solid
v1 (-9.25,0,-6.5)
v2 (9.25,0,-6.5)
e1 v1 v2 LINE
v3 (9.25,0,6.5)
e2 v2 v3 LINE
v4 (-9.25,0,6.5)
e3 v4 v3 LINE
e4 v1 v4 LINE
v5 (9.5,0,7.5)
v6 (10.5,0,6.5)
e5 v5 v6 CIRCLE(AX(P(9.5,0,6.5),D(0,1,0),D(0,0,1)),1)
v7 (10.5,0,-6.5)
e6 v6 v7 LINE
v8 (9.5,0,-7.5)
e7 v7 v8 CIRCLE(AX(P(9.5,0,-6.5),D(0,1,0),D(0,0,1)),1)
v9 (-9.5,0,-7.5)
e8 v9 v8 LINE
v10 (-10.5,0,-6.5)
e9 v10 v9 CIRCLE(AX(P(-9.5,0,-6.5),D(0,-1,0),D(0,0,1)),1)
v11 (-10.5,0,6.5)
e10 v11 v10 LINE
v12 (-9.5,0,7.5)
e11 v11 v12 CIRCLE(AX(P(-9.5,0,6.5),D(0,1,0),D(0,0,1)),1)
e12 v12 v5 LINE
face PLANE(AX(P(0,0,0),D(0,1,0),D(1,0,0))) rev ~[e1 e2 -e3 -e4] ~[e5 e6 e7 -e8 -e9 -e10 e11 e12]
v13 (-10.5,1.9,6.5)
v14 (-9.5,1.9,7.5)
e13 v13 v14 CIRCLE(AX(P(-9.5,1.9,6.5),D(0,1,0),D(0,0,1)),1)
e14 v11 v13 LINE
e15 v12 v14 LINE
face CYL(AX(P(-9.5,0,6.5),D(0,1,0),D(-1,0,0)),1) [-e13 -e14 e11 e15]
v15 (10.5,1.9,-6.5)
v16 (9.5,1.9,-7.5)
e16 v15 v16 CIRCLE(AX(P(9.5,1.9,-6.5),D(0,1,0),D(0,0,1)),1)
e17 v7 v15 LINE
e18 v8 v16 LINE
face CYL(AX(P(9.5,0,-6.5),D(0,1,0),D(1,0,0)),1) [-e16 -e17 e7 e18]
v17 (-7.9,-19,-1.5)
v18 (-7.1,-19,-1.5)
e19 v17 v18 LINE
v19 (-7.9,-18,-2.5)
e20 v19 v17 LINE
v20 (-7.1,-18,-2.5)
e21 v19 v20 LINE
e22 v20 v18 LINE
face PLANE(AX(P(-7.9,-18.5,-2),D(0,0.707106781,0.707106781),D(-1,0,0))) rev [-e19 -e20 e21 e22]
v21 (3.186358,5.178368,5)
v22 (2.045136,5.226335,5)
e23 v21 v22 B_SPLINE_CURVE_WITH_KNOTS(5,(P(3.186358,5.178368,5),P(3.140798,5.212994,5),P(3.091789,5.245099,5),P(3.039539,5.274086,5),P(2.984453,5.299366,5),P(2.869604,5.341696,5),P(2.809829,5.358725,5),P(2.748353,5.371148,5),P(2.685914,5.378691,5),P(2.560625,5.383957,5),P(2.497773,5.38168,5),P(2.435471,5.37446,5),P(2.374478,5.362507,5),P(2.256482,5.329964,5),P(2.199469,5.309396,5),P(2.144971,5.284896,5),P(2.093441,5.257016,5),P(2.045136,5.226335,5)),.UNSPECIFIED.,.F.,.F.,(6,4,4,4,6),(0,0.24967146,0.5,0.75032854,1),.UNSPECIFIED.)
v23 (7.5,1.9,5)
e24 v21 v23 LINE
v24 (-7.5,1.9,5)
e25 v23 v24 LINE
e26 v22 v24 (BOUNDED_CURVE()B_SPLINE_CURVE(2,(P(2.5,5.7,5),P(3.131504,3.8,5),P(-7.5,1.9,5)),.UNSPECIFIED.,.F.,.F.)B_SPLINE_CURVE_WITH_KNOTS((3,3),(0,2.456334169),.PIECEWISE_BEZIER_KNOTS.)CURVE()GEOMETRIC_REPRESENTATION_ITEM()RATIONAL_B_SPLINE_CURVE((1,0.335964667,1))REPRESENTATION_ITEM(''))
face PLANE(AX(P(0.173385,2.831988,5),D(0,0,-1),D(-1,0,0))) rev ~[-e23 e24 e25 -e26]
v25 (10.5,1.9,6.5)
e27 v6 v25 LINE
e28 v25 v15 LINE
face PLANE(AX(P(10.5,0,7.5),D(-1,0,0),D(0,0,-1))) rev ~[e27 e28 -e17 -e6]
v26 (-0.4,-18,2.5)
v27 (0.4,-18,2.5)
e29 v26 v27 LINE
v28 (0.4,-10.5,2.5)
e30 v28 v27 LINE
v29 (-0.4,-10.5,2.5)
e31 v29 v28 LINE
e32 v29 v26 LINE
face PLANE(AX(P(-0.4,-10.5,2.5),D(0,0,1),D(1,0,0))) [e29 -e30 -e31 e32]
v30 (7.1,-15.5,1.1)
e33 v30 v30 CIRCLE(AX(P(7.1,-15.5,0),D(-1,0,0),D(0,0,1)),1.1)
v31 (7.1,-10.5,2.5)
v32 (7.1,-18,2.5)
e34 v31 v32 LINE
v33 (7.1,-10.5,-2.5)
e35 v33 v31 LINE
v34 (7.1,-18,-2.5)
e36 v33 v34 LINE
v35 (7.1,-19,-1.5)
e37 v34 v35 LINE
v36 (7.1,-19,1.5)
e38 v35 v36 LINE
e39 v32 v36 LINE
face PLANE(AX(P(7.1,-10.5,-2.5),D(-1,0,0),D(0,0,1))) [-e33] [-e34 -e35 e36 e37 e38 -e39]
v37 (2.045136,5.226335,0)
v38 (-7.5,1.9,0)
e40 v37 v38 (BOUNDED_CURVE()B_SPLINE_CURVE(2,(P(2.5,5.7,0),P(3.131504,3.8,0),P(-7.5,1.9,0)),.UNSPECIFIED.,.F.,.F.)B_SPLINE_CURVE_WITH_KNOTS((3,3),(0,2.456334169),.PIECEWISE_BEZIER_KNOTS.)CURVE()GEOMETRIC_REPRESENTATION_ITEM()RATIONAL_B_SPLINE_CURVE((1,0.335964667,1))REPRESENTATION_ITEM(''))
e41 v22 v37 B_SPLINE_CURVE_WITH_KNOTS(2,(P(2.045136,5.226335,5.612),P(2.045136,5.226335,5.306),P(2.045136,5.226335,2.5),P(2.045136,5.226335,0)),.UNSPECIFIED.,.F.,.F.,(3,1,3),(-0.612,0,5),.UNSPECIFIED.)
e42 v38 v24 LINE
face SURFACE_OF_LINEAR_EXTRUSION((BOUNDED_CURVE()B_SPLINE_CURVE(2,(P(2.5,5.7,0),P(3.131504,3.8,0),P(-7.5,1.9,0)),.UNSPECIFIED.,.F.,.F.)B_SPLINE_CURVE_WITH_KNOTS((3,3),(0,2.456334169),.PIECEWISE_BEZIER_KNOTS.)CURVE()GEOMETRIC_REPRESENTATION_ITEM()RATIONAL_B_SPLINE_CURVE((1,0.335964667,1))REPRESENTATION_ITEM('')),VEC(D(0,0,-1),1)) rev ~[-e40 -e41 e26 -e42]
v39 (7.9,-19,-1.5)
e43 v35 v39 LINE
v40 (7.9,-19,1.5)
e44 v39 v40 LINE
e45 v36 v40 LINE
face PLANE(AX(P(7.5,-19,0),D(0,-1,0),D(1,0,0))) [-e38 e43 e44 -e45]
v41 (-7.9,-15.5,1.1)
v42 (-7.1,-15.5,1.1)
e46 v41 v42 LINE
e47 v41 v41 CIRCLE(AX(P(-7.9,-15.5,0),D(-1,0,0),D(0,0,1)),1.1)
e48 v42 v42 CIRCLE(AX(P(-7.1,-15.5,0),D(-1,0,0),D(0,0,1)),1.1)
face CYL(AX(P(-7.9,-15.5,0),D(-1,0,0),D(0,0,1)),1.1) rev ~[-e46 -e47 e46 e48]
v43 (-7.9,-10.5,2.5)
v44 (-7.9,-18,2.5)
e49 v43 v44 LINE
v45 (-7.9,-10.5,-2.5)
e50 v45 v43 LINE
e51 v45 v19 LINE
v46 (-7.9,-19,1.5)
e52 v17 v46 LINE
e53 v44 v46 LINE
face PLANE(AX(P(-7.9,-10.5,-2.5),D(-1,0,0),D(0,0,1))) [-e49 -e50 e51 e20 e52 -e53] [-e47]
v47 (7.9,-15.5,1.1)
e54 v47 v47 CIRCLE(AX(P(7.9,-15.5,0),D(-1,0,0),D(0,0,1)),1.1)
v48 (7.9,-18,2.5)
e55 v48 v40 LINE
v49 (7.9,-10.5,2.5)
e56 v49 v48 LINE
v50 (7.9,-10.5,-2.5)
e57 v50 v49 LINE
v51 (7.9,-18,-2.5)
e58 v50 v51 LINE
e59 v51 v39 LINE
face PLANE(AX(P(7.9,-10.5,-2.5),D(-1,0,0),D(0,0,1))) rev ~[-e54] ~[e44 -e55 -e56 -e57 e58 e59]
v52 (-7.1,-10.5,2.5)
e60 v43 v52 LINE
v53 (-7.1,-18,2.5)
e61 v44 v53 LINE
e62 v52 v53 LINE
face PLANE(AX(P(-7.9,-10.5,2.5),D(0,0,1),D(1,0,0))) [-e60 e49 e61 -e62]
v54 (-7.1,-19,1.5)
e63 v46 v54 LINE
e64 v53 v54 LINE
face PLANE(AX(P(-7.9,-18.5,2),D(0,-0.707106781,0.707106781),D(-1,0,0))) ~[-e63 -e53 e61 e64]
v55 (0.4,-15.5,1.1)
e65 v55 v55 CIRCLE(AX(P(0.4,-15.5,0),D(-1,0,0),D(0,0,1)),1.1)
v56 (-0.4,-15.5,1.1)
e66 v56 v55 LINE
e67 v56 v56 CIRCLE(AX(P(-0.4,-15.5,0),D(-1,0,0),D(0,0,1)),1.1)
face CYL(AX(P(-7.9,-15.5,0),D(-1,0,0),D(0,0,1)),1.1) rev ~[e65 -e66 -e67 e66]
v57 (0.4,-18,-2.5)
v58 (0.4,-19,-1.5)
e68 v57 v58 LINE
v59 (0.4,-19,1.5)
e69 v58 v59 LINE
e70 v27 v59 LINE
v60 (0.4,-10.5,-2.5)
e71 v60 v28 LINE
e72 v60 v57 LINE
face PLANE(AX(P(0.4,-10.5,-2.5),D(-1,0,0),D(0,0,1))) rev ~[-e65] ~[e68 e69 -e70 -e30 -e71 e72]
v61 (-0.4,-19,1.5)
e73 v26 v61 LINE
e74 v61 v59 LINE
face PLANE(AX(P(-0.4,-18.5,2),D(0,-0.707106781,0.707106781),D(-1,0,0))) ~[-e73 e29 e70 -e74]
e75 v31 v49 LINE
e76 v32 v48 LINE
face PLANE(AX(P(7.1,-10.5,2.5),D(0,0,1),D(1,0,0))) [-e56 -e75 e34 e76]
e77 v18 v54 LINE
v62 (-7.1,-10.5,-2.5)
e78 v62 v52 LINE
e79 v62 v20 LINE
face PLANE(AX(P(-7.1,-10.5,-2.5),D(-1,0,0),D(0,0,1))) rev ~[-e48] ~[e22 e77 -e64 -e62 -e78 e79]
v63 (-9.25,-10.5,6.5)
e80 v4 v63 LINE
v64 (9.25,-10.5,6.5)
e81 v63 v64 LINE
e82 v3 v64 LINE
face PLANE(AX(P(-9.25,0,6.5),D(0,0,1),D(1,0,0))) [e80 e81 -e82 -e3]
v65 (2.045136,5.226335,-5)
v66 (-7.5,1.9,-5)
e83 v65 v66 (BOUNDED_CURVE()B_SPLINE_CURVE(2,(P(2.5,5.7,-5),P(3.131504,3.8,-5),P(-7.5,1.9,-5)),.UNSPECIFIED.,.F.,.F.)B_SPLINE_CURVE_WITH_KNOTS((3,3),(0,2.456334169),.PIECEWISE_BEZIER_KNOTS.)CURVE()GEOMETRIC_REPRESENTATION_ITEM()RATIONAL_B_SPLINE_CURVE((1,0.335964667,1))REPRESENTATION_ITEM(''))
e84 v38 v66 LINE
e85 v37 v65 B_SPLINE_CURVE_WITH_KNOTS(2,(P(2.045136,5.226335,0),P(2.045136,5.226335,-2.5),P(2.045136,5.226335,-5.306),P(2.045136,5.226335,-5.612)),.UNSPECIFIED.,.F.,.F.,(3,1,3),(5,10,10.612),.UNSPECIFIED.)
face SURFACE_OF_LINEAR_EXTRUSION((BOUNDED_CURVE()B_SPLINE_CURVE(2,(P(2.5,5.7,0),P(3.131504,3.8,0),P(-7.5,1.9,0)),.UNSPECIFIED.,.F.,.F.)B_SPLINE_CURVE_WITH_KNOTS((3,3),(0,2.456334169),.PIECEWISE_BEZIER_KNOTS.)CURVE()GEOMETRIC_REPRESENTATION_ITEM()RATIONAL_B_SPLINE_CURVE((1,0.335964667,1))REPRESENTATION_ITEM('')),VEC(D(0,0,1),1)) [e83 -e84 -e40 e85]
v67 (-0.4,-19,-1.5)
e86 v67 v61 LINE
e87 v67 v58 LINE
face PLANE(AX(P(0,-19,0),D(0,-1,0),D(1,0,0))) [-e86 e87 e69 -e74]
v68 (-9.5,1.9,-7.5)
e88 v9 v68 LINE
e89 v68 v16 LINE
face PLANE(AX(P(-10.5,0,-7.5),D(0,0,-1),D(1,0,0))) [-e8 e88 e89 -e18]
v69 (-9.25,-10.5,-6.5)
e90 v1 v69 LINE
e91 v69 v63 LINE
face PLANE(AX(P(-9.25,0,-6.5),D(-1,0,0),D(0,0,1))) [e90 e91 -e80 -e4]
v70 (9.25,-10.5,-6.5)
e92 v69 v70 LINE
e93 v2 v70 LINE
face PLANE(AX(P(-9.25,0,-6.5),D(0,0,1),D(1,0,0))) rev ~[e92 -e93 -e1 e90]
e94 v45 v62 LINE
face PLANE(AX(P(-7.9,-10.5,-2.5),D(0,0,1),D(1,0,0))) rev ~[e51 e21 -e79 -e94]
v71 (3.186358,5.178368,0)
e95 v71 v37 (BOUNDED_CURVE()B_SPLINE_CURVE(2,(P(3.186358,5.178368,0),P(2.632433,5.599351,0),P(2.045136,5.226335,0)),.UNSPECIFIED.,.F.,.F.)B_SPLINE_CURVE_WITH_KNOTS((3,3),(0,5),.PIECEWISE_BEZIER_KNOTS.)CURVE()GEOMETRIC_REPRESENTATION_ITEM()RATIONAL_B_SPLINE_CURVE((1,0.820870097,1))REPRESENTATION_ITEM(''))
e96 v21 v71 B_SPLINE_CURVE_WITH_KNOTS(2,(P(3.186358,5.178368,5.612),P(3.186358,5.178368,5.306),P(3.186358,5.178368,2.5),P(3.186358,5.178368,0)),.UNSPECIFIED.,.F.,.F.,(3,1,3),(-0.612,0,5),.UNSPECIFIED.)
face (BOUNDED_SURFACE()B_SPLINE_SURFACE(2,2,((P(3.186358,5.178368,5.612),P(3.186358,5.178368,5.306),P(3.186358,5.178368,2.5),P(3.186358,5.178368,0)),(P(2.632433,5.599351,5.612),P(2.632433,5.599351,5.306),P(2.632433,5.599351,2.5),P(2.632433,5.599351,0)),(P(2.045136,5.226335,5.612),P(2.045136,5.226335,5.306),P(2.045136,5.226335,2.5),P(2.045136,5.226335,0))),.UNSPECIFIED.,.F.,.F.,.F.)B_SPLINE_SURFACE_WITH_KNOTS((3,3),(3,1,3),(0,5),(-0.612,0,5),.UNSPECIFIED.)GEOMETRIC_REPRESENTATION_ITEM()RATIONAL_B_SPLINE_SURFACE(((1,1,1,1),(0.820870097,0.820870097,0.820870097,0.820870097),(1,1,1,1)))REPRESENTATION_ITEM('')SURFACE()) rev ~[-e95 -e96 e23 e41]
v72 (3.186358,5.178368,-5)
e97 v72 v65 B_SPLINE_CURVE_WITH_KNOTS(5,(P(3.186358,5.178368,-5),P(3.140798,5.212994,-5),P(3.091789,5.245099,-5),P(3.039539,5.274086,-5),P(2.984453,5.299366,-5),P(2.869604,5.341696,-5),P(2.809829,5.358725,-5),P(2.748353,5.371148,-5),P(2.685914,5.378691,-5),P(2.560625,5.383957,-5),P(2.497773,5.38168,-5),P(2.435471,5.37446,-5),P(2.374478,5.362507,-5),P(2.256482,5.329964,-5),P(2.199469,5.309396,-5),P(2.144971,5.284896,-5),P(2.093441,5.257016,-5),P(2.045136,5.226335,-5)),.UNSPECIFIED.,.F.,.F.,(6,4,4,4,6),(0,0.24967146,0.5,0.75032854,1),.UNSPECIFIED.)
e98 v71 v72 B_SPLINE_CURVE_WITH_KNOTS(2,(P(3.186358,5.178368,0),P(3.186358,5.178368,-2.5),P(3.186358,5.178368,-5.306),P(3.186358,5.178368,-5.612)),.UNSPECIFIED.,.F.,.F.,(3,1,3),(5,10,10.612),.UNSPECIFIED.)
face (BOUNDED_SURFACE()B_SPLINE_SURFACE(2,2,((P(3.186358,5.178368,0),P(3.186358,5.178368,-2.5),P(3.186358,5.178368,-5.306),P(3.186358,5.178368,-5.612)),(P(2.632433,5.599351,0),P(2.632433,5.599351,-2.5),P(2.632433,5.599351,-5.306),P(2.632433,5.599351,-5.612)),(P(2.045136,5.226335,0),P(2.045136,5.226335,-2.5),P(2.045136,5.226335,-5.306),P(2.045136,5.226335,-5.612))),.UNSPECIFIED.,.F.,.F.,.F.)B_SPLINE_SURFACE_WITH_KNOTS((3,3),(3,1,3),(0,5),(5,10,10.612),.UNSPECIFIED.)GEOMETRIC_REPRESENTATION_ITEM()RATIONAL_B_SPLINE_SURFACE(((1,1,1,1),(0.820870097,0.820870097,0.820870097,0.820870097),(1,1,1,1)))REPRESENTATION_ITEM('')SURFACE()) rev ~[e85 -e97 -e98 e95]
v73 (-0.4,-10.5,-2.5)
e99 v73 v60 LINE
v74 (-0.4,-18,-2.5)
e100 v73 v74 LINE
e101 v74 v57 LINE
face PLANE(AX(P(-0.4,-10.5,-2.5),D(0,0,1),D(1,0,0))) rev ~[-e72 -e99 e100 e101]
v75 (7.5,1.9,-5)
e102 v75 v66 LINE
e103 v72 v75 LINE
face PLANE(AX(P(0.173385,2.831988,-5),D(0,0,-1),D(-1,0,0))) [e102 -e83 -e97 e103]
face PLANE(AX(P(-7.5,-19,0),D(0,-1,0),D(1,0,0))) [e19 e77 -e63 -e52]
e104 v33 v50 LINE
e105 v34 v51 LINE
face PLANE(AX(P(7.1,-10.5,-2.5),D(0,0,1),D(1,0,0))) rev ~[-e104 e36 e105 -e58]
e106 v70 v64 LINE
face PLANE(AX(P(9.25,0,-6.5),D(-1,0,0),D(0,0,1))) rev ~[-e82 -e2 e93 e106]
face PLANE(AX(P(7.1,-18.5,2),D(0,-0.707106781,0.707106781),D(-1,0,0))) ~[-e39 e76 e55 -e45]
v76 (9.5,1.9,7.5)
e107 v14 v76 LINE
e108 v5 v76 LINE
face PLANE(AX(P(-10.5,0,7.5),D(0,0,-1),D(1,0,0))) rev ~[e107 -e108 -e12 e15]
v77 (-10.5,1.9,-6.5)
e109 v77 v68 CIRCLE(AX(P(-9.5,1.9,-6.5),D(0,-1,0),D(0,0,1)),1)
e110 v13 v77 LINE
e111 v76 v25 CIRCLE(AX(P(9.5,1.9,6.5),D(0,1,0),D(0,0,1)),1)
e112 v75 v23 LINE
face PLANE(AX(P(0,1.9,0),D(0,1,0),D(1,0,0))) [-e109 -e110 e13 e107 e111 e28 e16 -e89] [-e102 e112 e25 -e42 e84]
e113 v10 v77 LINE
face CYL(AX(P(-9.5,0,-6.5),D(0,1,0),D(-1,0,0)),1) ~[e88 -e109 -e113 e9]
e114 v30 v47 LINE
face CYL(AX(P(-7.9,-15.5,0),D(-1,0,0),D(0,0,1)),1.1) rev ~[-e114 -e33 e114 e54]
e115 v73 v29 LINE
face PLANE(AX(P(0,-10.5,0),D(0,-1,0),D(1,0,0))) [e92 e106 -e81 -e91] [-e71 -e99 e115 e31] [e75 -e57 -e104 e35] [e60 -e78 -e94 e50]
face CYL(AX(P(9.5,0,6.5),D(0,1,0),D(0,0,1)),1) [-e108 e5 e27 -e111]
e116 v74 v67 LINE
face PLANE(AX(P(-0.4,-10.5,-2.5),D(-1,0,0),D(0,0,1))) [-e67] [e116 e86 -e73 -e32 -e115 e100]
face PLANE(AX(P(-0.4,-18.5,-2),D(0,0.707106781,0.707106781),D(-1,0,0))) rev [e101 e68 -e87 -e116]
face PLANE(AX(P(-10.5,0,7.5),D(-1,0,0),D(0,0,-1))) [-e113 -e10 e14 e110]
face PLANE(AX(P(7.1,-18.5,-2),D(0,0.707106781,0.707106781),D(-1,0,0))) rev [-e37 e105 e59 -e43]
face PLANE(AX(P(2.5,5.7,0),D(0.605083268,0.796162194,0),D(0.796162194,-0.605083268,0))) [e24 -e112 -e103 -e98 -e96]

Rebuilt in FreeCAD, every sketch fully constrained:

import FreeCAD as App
import Part
import Sketcher

V = App.Vector
Q = App.Units.Quantity


def edges_at(feature, points):
    """Names of the edges that pass closest to the given points."""
    edges = feature.Shape.Edges
    near = lambda p: min(range(len(edges)), key=lambda i: edges[i].distToShape(Part.Vertex(*p))[0])
    return sorted({f"Edge{near(p) + 1}" for p in points})


def add_polygon(sketch, points):
    """Adds a closed chain of lines whose ends are joined by coincident constraints."""
    first, n = sketch.GeometryCount, len(points)
    for a, b in zip(points, points[1:] + points[:1]):
        sketch.addGeometry(Part.LineSegment(App.Vector(*a, 0), App.Vector(*b, 0)), False)
    for i in range(n):
        sketch.addConstraint(Sketcher.Constraint("Coincident", first + i, 2, first + (i + 1) % n, 1))

doc = App.newDocument("Part")
body = doc.addObject("PartDesign::Body", "Body")

# Sketch on XZ plane
sketch1 = body.newObject("Sketcher::SketchObject", "Sketch")
sketch1.AttachmentSupport = (doc.getObject("XZ_Plane"), [""])
sketch1.MapMode = "FlatFace"
add_polygon(sketch1, [(-10, -8), (-10, 8), (10, 8), (10, -8)])  # lines 0-3
sketch1.addConstraint([
    Sketcher.Constraint("Vertical", 0),
    Sketcher.Constraint("Horizontal", 1),
    Sketcher.Constraint("Vertical", 2),
    Sketcher.Constraint("Horizontal", 3),
    Sketcher.Constraint("Symmetric", 0, 2, 2, 2, -1, 1),
    Sketcher.Constraint("DistanceX", 1, 1, 1, 2, Q("21 mm")),
    Sketcher.Constraint("DistanceY", 0, 1, 0, 2, Q("15 mm")),
])
pad1 = body.newObject("PartDesign::Pad", "Pad")
pad1.Profile = sketch1
pad1.Length = 1.9
pad1.Reversed = True
doc.recompute()

fillet = body.newObject("PartDesign::Fillet", "Fillet")
fillet.Base = (pad1, edges_at(pad1, [
    (10.5, 0.95, 7.5),
    (-10.5, 0.95, 7.5),
    (-10.5, 0.95, -7.5),
    (10.5, 0.95, -7.5),
]))
fillet.Radius = 1

# Sketch on XZ plane
sketch2 = body.newObject("Sketcher::SketchObject", "Sketch001")
sketch2.AttachmentSupport = (doc.getObject("XZ_Plane"), [""])
sketch2.MapMode = "FlatFace"
add_polygon(sketch2, [(-9, 6), (-9, -6), (9, -6), (9, 6)])  # lines 0-3
sketch2.addConstraint([
    Sketcher.Constraint("Vertical", 0),
    Sketcher.Constraint("Horizontal", 1),
    Sketcher.Constraint("Vertical", 2),
    Sketcher.Constraint("Horizontal", 3),
    Sketcher.Constraint("Symmetric", 0, 2, 2, 2, -1, 1),
    Sketcher.Constraint("DistanceY", 0, 2, 0, 1, Q("13 mm")),
    Sketcher.Constraint("DistanceX", 1, 1, 1, 2, Q("18.5 mm")),
])
pad2 = body.newObject("PartDesign::Pad", "Pad001")
pad2.Profile = sketch2
pad2.Length = 10.5

# Sketch on XY plane
sketch3 = body.newObject("Sketcher::SketchObject", "Sketch002")
sketch3.AttachmentSupport = (doc.getObject("XY_Plane"), [""])
sketch3.MapMode = "FlatFace"
sketch3.addGeometry([
    Part.LineSegment(V(7.5, 1.9, 0), V(-7.5, 1.9, 0)),
    Part.BSplineCurve([V(2.5, 5.7, 0), V(3.131504, 3.8, 0), V(-7.5, 1.9, 0)], [3, 3], [0, 2.456334169], False, 2, [1, 0.335964667, 1], False),
    Part.LineSegment(V(2.5, 5.7, 0), V(7.5, 1.9, 0)),
], False)
sketch3.addConstraint([
    Sketcher.Constraint("Block", 1),
    Sketcher.Constraint("Coincident", 0, 2, 1, 2),
    Sketcher.Constraint("Coincident", 1, 1, 2, 1),
    Sketcher.Constraint("Coincident", 2, 2, 0, 1),
    Sketcher.Constraint("Horizontal", 0),
    Sketcher.Constraint("DistanceX", 0, 2, 0, 1, Q("15 mm")),
])
pad3 = body.newObject("PartDesign::Pad", "Pad002")
pad3.Profile = sketch3
pad3.Length = 10
pad3.Midplane = True
doc.recompute()

fillet2 = body.newObject("PartDesign::Fillet", "Fillet001")
fillet2.Base = (pad3, edges_at(pad3, [(2.5, 5.7, -2.5)]))
fillet2.Radius = 1

# Sketch on XZ plane
sketch4 = body.newObject("Sketcher::SketchObject", "Sketch003")
sketch4.AttachmentSupport = (doc.getObject("XZ_Plane"), [""])
sketch4.MapMode = "FlatFace"
sketch4.AttachmentOffset = App.Placement(V(0, 0, 10.5), App.Rotation())
add_polygon(sketch4, [(7.1, 2.5), (7.1, -2.5), (7.9, -2.5), (7.9, 2.5)])  # lines 0-3
add_polygon(sketch4, [(-0.4, 2.5), (-0.4, -2.5), (0.4, -2.5), (0.4, 2.5)])  # lines 4-7
add_polygon(sketch4, [(-7.9, 2.5), (-7.9, -2.5), (-7.1, -2.5), (-7.1, 2.5)])  # lines 8-11
sketch4.addConstraint([
    Sketcher.Constraint("Vertical", 0),
    Sketcher.Constraint("Horizontal", 1),
    Sketcher.Constraint("Vertical", 2),
    Sketcher.Constraint("Horizontal", 3),
    Sketcher.Constraint("Vertical", 4),
    Sketcher.Constraint("Horizontal", 5),
    Sketcher.Constraint("Vertical", 6),
    Sketcher.Constraint("Horizontal", 7),
    Sketcher.Constraint("Vertical", 8),
    Sketcher.Constraint("Horizontal", 9),
    Sketcher.Constraint("Vertical", 10),
    Sketcher.Constraint("Horizontal", 11),
    Sketcher.Constraint("Symmetric", 4, 2, 6, 2, -1, 1),
    Sketcher.Constraint("Symmetric", 2, 2, 8, 2, -1, 1),
    Sketcher.Constraint("Symmetric", 0, 2, 10, 2, -1, 1),
    Sketcher.Constraint("Horizontal", 1, 2, 4, 2),
    Sketcher.Constraint("Horizontal", 3, 2, 6, 2),
    Sketcher.Constraint("Equal", 3, 5),
    Sketcher.Constraint("DistanceY", 0, 2, 0, 1, Q("5 mm")),
    Sketcher.Constraint("DistanceX", 1, 1, 1, 2, Q("0.8 mm")),
    Sketcher.Constraint("DistanceX", 8, 2, 0, 2, Q("15 mm")),
])
pad4 = body.newObject("PartDesign::Pad", "Pad003")
pad4.Profile = sketch4
pad4.Length = 8.5
doc.recompute()

chamfer = body.newObject("PartDesign::Chamfer", "Chamfer")
chamfer.Base = (pad4, edges_at(pad4, [
    (0, -19, 2.5),
    (0, -19, -2.5),
    (7.5, -19, 2.5),
    (7.5, -19, -2.5),
    (-7.5, -19, 2.5),
    (-7.5, -19, -2.5),
]))
chamfer.Size = 1

# Sketch on YZ plane
sketch5 = body.newObject("Sketcher::SketchObject", "Sketch004")
sketch5.AttachmentSupport = (doc.getObject("YZ_Plane"), [""])
sketch5.MapMode = "FlatFace"
sketch5.AttachmentOffset = App.Placement(V(0, 0, -7.9), App.Rotation())
sketch5.addGeometry(Part.Circle(V(-15.5, 0, 0), V(0, 0, 1), 1.1), False)
sketch5.addConstraint([
    Sketcher.Constraint("PointOnObject", 0, 3, -1),
    Sketcher.Constraint("Diameter", 0, Q("2.2 mm")),
    Sketcher.Constraint("DistanceX", 0, 3, -1, 1, Q("15.5 mm")),
])
pocket1 = body.newObject("PartDesign::Pocket", "Pocket")
pocket1.Profile = sketch5
pocket1.Type = "ThroughAll"
pocket1.Reversed = True

doc.recompute()
